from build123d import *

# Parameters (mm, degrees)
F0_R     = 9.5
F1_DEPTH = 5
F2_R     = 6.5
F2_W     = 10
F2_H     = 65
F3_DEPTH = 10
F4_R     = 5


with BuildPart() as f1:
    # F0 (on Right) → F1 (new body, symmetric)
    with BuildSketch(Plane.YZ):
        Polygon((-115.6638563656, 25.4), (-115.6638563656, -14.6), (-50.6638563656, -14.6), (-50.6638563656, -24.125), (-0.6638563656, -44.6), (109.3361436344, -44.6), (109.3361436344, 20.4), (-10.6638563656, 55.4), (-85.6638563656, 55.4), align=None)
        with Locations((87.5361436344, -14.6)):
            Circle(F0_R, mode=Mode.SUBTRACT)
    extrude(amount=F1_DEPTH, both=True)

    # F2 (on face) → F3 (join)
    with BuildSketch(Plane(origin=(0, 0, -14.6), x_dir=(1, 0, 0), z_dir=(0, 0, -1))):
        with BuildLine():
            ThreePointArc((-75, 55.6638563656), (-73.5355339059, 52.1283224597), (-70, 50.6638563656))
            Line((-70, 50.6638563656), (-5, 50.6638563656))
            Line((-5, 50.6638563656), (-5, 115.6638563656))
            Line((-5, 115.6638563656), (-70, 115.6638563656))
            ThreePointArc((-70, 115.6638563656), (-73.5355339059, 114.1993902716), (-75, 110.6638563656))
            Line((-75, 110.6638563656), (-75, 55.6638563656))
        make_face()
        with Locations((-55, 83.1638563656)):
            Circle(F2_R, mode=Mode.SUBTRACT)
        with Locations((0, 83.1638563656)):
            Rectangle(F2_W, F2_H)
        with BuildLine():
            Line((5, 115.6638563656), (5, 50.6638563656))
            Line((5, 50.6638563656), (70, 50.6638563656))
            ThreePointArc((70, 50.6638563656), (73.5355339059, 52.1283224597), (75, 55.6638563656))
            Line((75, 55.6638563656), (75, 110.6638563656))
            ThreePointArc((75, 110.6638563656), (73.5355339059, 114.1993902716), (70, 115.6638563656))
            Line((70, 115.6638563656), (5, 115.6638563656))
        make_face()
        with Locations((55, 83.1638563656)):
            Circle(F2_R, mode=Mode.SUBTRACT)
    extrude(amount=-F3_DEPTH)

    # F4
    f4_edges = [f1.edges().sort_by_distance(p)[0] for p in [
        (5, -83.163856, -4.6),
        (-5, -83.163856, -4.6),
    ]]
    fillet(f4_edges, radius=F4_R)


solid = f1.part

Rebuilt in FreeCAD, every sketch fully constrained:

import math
import FreeCAD as App
import Part
import Sketcher
from FreeCAD import Vector
Q = App.Units.Quantity


def edges_at(feature, points):
    """Names of the edges that pass closest to the given points."""
    edges = feature.Shape.Edges
    near = lambda p: min(range(len(edges)), key=lambda i: edges[i].distToShape(Part.Vertex(*p))[0])
    return sorted({f"Edge{near(p) + 1}" for p in points})

doc = App.newDocument("Part")
body = doc.addObject("PartDesign::Body", "Body")

# Sketch on YZ plane
sketch1 = body.newObject("Sketcher::SketchObject", "Sketch")
sketch1.AttachmentSupport = (doc.getObject("YZ_Plane"), [""])
sketch1.MapMode = "FlatFace"
sketch1.addGeometry([
    Part.LineSegment(Vector(-115.663856, 25.4, 0), Vector(-115.663856, -14.6, 0)),  # 0
    Part.LineSegment(Vector(-115.663856, -14.6, 0), Vector(-50.663856, -14.6, 0)),  # 1
    Part.LineSegment(Vector(-50.663856, -14.6, 0), Vector(-50.663856, -24.125, 0)),  # 2
    Part.LineSegment(Vector(-50.663856, -24.125, 0), Vector(-0.663856, -44.6, 0)),  # 3
    Part.LineSegment(Vector(-0.663856, -44.6, 0), Vector(109.336144, -44.6, 0)),  # 4
    Part.LineSegment(Vector(109.336144, -44.6, 0), Vector(109.336144, 20.4, 0)),  # 5
    Part.LineSegment(Vector(109.336144, 20.4, 0), Vector(-10.663856, 55.4, 0)),  # 6
    Part.LineSegment(Vector(-10.663856, 55.4, 0), Vector(-85.663856, 55.4, 0)),  # 7
    Part.LineSegment(Vector(-85.663856, 55.4, 0), Vector(-115.663856, 25.4, 0)),  # 8
    Part.Circle(Vector(87.536144, -14.6, 0), Vector(0, 0, 1), 9.5),  # 9
], False)
sketch1.addConstraint([
    Sketcher.Constraint("Coincident", 0, 2, 1, 1),
    Sketcher.Constraint("Coincident", 1, 2, 2, 1),
    Sketcher.Constraint("Coincident", 2, 2, 3, 1),
    Sketcher.Constraint("Coincident", 3, 2, 4, 1),
    Sketcher.Constraint("Coincident", 4, 2, 5, 1),
    Sketcher.Constraint("Coincident", 5, 2, 6, 1),
    Sketcher.Constraint("Coincident", 6, 2, 7, 1),
    Sketcher.Constraint("Coincident", 7, 2, 8, 1),
    Sketcher.Constraint("Coincident", 8, 2, 0, 1),
    Sketcher.Constraint("Vertical", 0),
    Sketcher.Constraint("Horizontal", 1),
    Sketcher.Constraint("Vertical", 2),
    Sketcher.Constraint("Horizontal", 4),
    Sketcher.Constraint("Vertical", 5),
    Sketcher.Constraint("Horizontal", 7),
    Sketcher.Constraint("Horizontal", 9, 3, 0, 2),
    Sketcher.Constraint("Equal", 1, 5),
    Sketcher.Constraint("Diameter", 9, 19.0),
    Sketcher.Constraint("DistanceX", 1, 1, 1, 2, 65.0),
    Sketcher.Constraint("DistanceX", 4, 1, 4, 2, 110.0),
    Sketcher.Constraint("DistanceX", 7, 2, 7, 1, 75.0),
    Sketcher.Constraint("DistanceY", 0, 2, 0, 1, 40.0),
    Sketcher.Constraint("Angle", 8, Q("-135 deg")),
    Sketcher.Constraint("Distance", 6, 125.0),
    Sketcher.Constraint("DistanceX", 2, 2, 3, 2, 50.0),
    Sketcher.Constraint("DistanceY", 3, 2, 1, 2, 30.0),
    Sketcher.Constraint("DistanceY", 9, 3, -1, 1, 14.6),
    Sketcher.Constraint("DistanceX", 0, 2, 9, 3, 203.2),
    Sketcher.Constraint("DistanceY", 2, 2, 2, 1, 9.525),
    Sketcher.Constraint("DistanceX", -1, 1, 9, 3, 87.536144),
])
pad1 = body.newObject("PartDesign::Pad", "Pad")
pad1.Profile = sketch1
pad1.Length = 10
pad1.Midplane = True

# Sketch on XY plane
sketch2 = body.newObject("Sketcher::SketchObject", "Sketch001")
sketch2.AttachmentSupport = (doc.getObject("XY_Plane"), [""])
sketch2.MapMode = "FlatFace"
sketch2.AttachmentOffset = App.Placement(Vector(0, 0, -14.6), App.Rotation())
sketch2.addGeometry([
    Part.ArcOfCircle(Part.Circle(Vector(-70, -55.663856, 0), Vector(0, 0, 1), 5), math.radians(90), math.radians(180)),  # 0
    Part.LineSegment(Vector(-70, -50.663856, 0), Vector(70, -50.663856, 0)),  # 1
    Part.ArcOfCircle(Part.Circle(Vector(70, -55.663856, 0), Vector(0, 0, 1), 5), math.radians(0), math.radians(90)),  # 2
    Part.LineSegment(Vector(75, -55.663856, 0), Vector(75, -110.663856, 0)),  # 3
    Part.ArcOfCircle(Part.Circle(Vector(70, -110.663856, 0), Vector(0, 0, 1), 5), math.radians(-90), math.radians(0)),  # 4
    Part.LineSegment(Vector(70, -115.663856, 0), Vector(-70, -115.663856, 0)),  # 5
    Part.ArcOfCircle(Part.Circle(Vector(-70, -110.663856, 0), Vector(0, 0, 1), 5), math.radians(180), math.radians(270)),  # 6
    Part.LineSegment(Vector(-75, -110.663856, 0), Vector(-75, -55.663856, 0)),  # 7
    Part.Circle(Vector(-55, -83.163856, 0), Vector(0, 0, 1), 6.5),  # 8
    Part.Circle(Vector(55, -83.163856, 0), Vector(0, 0, 1), 6.5),  # 9
], False)
sketch2.addConstraint([
    Sketcher.Constraint("Tangent", 0, 1, 1, 1),
    Sketcher.Constraint("Tangent", 1, 2, 2, 2),
    Sketcher.Constraint("Tangent", 2, 1, 3, 1),
    Sketcher.Constraint("Tangent", 3, 2, 4, 2),
    Sketcher.Constraint("Tangent", 4, 1, 5, 1),
    Sketcher.Constraint("Tangent", 5, 2, 6, 2),
    Sketcher.Constraint("Tangent", 6, 1, 7, 1),
    Sketcher.Constraint("Tangent", 7, 2, 0, 2),
    Sketcher.Constraint("Horizontal", 1),
    Sketcher.Constraint("Vertical", 3),
    Sketcher.Constraint("Horizontal", 5),
    Sketcher.Constraint("Vertical", 7),
    Sketcher.Constraint("Equal", 0, 2),
    Sketcher.Constraint("Equal", 2, 4),
    Sketcher.Constraint("Equal", 4, 6),
    Sketcher.Constraint("Equal", 8, 9),
    Sketcher.Constraint("Symmetric", 8, 3, 9, 3, -2),
    Sketcher.Constraint("Diameter", 8, 13.0),
    Sketcher.Constraint("Radius", 0, 5.0),
    Sketcher.Constraint("DistanceX", 1, 1, 1, 2, 140.0),
    Sketcher.Constraint("DistanceY", 3, 2, 3, 1, 55.0),
    Sketcher.Constraint("DistanceX", 0, 3, -1, 1, 70.0),
    Sketcher.Constraint("DistanceX", 8, 3, -1, 1, 55.0),
    Sketcher.Constraint("DistanceY", 6, 3, 8, 3, 27.5),
    Sketcher.Constraint("DistanceY", 0, 3, -1, 1, 55.663856),
])
pad2 = body.newObject("PartDesign::Pad", "Pad001")
pad2.Profile = sketch2
pad2.Length = 10
doc.recompute()

fillet = body.newObject("PartDesign::Fillet", "Fillet")
fillet.Base = (pad2, edges_at(pad2, [(5, -83.164, -4.6), (-5, -83.164, -4.6)]))
fillet.Radius = 5

doc.recompute()
